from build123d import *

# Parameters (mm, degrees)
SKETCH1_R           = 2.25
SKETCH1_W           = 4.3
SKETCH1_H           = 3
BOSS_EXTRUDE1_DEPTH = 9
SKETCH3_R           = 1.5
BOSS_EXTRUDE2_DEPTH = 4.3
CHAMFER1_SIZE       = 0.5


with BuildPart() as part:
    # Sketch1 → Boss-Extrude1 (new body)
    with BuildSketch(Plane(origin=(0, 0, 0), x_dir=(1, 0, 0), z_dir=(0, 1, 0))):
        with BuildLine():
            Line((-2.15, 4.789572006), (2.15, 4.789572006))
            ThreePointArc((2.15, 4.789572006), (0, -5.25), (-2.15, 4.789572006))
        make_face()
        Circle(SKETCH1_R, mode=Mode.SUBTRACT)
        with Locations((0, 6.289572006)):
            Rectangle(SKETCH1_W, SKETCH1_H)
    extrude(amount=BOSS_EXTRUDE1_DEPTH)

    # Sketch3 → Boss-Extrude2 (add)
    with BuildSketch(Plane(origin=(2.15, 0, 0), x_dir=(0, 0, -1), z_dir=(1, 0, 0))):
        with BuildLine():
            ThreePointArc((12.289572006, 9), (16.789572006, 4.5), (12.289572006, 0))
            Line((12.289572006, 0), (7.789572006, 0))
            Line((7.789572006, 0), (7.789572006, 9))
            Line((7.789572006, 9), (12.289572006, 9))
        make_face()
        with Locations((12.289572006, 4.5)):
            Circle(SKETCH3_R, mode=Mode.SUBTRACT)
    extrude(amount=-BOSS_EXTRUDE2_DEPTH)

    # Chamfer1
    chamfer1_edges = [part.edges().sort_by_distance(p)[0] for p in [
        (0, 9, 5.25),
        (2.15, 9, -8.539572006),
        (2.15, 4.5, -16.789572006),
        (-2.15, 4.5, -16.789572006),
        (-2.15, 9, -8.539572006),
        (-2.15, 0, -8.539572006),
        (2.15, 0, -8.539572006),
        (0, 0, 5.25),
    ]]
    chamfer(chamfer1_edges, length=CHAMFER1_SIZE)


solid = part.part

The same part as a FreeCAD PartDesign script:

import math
import FreeCAD as App
import Part
import Sketcher


def edges_at(feature, points):
    """Names of the edges that pass closest to the given points."""
    edges = feature.Shape.Edges
    near = lambda p: min(range(len(edges)), key=lambda i: edges[i].distToShape(Part.Vertex(*p))[0])
    return sorted({f"Edge{near(p) + 1}" for p in points})

doc = App.newDocument("Part")
body = doc.addObject("PartDesign::Body", "Body")

# Sketch on XZ plane
sketch1 = body.newObject("Sketcher::SketchObject", "Sketch")
sketch1.AttachmentSupport = (doc.getObject("XZ_Plane"), [""])
sketch1.MapMode = "FlatFace"
sketch1.addGeometry([
    Part.ArcOfCircle(Part.Circle(App.Vector(0, 0, 0), App.Vector(0, 0, 1), 5.2), math.radians(-66), math.radians(246)),  # 0
    Part.LineSegment(App.Vector(2.1, -4.8, 0), App.Vector(2.1, -7.8, 0)),  # 1
    Part.LineSegment(App.Vector(2.1, -7.8, 0), App.Vector(-2.1, -7.8, 0)),  # 2
    Part.LineSegment(App.Vector(-2.1, -7.8, 0), App.Vector(-2.1, -4.8, 0)),  # 3
    Part.Circle(App.Vector(0, 0, 0), App.Vector(0, 0, 1), 2.2),  # 4
], False)
sketch1.addConstraint([
    Sketcher.Constraint("Coincident", 0, 1, 1, 1),
    Sketcher.Constraint("Coincident", 1, 2, 2, 1),
    Sketcher.Constraint("Coincident", 2, 2, 3, 1),
    Sketcher.Constraint("Coincident", 3, 2, 0, 2),
    Sketcher.Constraint("Vertical", 1),
    Sketcher.Constraint("Horizontal", 2),
    Sketcher.Constraint("Vertical", 3),
    Sketcher.Constraint("Coincident", 0, 3, -1, 1),
    Sketcher.Constraint("Coincident", 4, 3, -1, 1),
    Sketcher.Constraint("Horizontal", 0, 1, 3, 2),
    Sketcher.Constraint("Diameter", 4, 4.5),
    Sketcher.Constraint("DistanceY", 1, 2, 1, 1, 3.0),
    Sketcher.Constraint("Radius", 0, 5.25),
    Sketcher.Constraint("DistanceX", 2, 2, 2, 1, 4.3),
])
pad1 = body.newObject("PartDesign::Pad", "Pad")
pad1.Profile = sketch1
pad1.Length = 9
pad1.Reversed = True

# Sketch on YZ plane
sketch2 = body.newObject("Sketcher::SketchObject", "Sketch001")
sketch2.AttachmentSupport = (doc.getObject("YZ_Plane"), [""])
sketch2.MapMode = "FlatFace"
sketch2.AttachmentOffset = App.Placement(App.Vector(0, 0, 2.15), App.Rotation())
sketch2.addGeometry([
    Part.ArcOfCircle(Part.Circle(App.Vector(4.5, -12.3, 0), App.Vector(0, 0, 1), 4.5), math.radians(180), math.radians(360)),  # 0
    Part.LineSegment(App.Vector(9, -12.3, 0), App.Vector(9, -7.8, 0)),  # 1
    Part.LineSegment(App.Vector(9, -7.8, 0), App.Vector(0, -7.8, 0)),  # 2
    Part.LineSegment(App.Vector(0, -7.8, 0), App.Vector(0, -12.3, 0)),  # 3
    Part.Circle(App.Vector(4.5, -12.3, 0), App.Vector(0, 0, 1), 1.5),  # 4
], False)
sketch2.addConstraint([
    Sketcher.Constraint("Tangent", 0, 2, 1, 1),
    Sketcher.Constraint("Coincident", 1, 2, 2, 1),
    Sketcher.Constraint("Coincident", 2, 2, 3, 1),
    Sketcher.Constraint("Tangent", 3, 2, 0, 1),
    Sketcher.Constraint("Vertical", 1),
    Sketcher.Constraint("Horizontal", 2),
    Sketcher.Constraint("Vertical", 3),
    Sketcher.Constraint("Coincident", 4, 3, 0, 3),
    Sketcher.Constraint("PointOnObject", 2, 2, -2),
    Sketcher.Constraint("Diameter", 4, 3.0),
    Sketcher.Constraint("Radius", 0, 4.5),
    Sketcher.Constraint("DistanceY", 1, 1, 1, 2, 4.5),
    Sketcher.Constraint("DistanceY", 0, 3, -1, 1, 12.289572),
])
pad2 = body.newObject("PartDesign::Pad", "Pad001")
pad2.Profile = sketch2
pad2.Length = 4.3
pad2.Reversed = True
doc.recompute()

chamfer = body.newObject("PartDesign::Chamfer", "Chamfer")
chamfer.Base = (pad2, edges_at(pad2, [
    (0, 9, 5.25),
    (2.15, 9, -8.54),
    (2.15, 4.5, -16.79),
    (-2.15, 4.5, -16.79),
    (-2.15, 9, -8.54),
    (-2.15, 0, -8.54),
    (2.15, 0, -8.54),
    (0, 0, 5.25),
]))
chamfer.Size = 0.5

doc.recompute()
